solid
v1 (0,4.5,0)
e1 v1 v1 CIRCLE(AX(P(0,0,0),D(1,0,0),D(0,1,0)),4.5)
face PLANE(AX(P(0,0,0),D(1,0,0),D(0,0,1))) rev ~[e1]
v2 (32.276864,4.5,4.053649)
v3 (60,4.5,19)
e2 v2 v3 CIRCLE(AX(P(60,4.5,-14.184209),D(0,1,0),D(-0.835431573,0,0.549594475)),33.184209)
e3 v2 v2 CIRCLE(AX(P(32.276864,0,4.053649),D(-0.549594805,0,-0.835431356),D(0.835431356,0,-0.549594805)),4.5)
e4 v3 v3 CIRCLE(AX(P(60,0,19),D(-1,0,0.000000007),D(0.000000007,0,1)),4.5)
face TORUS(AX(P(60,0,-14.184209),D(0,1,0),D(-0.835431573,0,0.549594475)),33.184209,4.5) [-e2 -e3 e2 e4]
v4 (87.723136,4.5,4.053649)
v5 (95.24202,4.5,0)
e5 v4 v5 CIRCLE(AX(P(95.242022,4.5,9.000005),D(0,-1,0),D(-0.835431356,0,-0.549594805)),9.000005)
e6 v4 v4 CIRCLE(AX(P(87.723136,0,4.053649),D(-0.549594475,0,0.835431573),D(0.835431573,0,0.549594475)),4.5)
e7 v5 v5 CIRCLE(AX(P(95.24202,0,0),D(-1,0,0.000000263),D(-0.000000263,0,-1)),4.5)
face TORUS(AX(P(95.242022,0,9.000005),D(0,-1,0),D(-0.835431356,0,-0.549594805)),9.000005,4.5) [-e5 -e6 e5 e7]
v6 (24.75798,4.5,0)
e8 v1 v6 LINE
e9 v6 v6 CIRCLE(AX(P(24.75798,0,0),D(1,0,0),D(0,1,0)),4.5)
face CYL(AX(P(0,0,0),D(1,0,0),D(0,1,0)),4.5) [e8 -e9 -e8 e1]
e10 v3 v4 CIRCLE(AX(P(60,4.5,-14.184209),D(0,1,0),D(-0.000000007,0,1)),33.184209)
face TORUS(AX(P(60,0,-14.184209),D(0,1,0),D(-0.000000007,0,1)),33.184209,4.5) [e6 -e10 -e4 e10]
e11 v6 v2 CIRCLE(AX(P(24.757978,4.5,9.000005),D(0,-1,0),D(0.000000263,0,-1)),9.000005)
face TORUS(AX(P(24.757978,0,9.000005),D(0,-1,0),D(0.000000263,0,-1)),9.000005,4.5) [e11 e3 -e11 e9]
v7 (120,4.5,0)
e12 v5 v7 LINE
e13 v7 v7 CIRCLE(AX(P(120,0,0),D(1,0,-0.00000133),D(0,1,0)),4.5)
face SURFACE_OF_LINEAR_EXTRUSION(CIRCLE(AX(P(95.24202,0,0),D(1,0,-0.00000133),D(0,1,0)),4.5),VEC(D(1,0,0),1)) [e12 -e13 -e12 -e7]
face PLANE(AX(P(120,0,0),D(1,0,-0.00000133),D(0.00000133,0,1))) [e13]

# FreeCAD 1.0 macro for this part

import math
import FreeCAD as App
import Part
import Sketcher
from FreeCAD import Vector

doc = App.newDocument("Part")
body = doc.addObject("PartDesign::Body", "Body")

sketch1 = body.newObject("Sketcher::SketchObject", "Sketch")
sketch1.AttachmentSupport = (doc.getObject("YZ_Plane"), [""])
sketch1.MapMode = "FlatFace"
sketch1.addGeometry(Part.Circle(Vector(0, 0, 0), Vector(0, 0, 1), 4.5), False)
sketch1.addConstraint(Sketcher.Constraint("Coincident", 0, 3, -1, 1))
sketch1.addConstraint(Sketcher.Constraint("Diameter", 0, 9.0))

sketch2 = body.newObject("Sketcher::SketchObject", "Sketch001")
sketch2.AttachmentSupport = (doc.getObject("XZ_Plane"), [""])
sketch2.MapMode = "FlatFace"
sketch2.addGeometry(Part.LineSegment(Vector(0, 0, 0), Vector(24.75798, 0, 0)), False)
sketch2.addGeometry(Part.ArcOfCircle(Part.Circle(Vector(24.757978, 9.000005, 0), Vector(0, 0, 1), 9.000005), math.radians(-89.999985), math.radians(-33.339219)), False)
sketch2.addGeometry(Part.ArcOfCircle(Part.Circle(Vector(60, -14.184209, 0), Vector(0, 0, 1), 33.184209), math.radians(90), math.radians(146.660803)), False)
sketch2.addGeometry(Part.ArcOfCircle(Part.Circle(Vector(60, -14.184209, 0), Vector(0, 0, 1), 33.184209), math.radians(33.339197), math.radians(90)), False)
sketch2.addGeometry(Part.ArcOfCircle(Part.Circle(Vector(95.242022, 9.000005, 0), Vector(0, 0, 1), 9.000005), math.radians(-146.660781), math.radians(-90.000015)), False)
sketch2.addGeometry(Part.LineSegment(Vector(95.24202, 0, 0), Vector(120, 0, 0)), False)
sketch2.addConstraint(Sketcher.Constraint("Tangent", 0, 2, 1, 1))
sketch2.addConstraint(Sketcher.Constraint("Tangent", 1, 2, 2, 2))
sketch2.addConstraint(Sketcher.Constraint("Tangent", 2, 1, 3, 2))
sketch2.addConstraint(Sketcher.Constraint("Tangent", 3, 1, 4, 1))
sketch2.addConstraint(Sketcher.Constraint("Tangent", 4, 2, 5, 1))
sketch2.addConstraint(Sketcher.Constraint("Horizontal", 0))
sketch2.addConstraint(Sketcher.Constraint("Horizontal", 5))
sketch2.addConstraint(Sketcher.Constraint("Coincident", 0, 1, -1, 1))
sketch2.addConstraint(Sketcher.Constraint("Equal", 2, 3))
sketch2.addConstraint(Sketcher.Constraint("Equal", 1, 4))
sketch2.addConstraint(Sketcher.Constraint("PointOnObject", 4, 2, -1))
sketch2.addConstraint(Sketcher.Constraint("Vertical", 3, 3, 2, 1))
sketch2.addConstraint(Sketcher.Constraint("Equal", 0, 5))
sketch2.addConstraint(Sketcher.Constraint("DistanceX", -1, 1, 2, 3, 60.0))
sketch2.addConstraint(Sketcher.Constraint("DistanceY", -1, 1, 2, 1, 19.0))
sketch2.addConstraint(Sketcher.Constraint("Radius", 2, 33.184209))
sketch2.addConstraint(Sketcher.Constraint("Radius", 1, 9.000005))
doc.recompute()

additivepipe = body.newObject("PartDesign::AdditivePipe", "AdditivePipe")
additivepipe.Profile = sketch1
additivepipe.Spine = (sketch2, ["Edge1", "Edge2", "Edge3", "Edge4", "Edge5", "Edge6"])

doc.recompute()
